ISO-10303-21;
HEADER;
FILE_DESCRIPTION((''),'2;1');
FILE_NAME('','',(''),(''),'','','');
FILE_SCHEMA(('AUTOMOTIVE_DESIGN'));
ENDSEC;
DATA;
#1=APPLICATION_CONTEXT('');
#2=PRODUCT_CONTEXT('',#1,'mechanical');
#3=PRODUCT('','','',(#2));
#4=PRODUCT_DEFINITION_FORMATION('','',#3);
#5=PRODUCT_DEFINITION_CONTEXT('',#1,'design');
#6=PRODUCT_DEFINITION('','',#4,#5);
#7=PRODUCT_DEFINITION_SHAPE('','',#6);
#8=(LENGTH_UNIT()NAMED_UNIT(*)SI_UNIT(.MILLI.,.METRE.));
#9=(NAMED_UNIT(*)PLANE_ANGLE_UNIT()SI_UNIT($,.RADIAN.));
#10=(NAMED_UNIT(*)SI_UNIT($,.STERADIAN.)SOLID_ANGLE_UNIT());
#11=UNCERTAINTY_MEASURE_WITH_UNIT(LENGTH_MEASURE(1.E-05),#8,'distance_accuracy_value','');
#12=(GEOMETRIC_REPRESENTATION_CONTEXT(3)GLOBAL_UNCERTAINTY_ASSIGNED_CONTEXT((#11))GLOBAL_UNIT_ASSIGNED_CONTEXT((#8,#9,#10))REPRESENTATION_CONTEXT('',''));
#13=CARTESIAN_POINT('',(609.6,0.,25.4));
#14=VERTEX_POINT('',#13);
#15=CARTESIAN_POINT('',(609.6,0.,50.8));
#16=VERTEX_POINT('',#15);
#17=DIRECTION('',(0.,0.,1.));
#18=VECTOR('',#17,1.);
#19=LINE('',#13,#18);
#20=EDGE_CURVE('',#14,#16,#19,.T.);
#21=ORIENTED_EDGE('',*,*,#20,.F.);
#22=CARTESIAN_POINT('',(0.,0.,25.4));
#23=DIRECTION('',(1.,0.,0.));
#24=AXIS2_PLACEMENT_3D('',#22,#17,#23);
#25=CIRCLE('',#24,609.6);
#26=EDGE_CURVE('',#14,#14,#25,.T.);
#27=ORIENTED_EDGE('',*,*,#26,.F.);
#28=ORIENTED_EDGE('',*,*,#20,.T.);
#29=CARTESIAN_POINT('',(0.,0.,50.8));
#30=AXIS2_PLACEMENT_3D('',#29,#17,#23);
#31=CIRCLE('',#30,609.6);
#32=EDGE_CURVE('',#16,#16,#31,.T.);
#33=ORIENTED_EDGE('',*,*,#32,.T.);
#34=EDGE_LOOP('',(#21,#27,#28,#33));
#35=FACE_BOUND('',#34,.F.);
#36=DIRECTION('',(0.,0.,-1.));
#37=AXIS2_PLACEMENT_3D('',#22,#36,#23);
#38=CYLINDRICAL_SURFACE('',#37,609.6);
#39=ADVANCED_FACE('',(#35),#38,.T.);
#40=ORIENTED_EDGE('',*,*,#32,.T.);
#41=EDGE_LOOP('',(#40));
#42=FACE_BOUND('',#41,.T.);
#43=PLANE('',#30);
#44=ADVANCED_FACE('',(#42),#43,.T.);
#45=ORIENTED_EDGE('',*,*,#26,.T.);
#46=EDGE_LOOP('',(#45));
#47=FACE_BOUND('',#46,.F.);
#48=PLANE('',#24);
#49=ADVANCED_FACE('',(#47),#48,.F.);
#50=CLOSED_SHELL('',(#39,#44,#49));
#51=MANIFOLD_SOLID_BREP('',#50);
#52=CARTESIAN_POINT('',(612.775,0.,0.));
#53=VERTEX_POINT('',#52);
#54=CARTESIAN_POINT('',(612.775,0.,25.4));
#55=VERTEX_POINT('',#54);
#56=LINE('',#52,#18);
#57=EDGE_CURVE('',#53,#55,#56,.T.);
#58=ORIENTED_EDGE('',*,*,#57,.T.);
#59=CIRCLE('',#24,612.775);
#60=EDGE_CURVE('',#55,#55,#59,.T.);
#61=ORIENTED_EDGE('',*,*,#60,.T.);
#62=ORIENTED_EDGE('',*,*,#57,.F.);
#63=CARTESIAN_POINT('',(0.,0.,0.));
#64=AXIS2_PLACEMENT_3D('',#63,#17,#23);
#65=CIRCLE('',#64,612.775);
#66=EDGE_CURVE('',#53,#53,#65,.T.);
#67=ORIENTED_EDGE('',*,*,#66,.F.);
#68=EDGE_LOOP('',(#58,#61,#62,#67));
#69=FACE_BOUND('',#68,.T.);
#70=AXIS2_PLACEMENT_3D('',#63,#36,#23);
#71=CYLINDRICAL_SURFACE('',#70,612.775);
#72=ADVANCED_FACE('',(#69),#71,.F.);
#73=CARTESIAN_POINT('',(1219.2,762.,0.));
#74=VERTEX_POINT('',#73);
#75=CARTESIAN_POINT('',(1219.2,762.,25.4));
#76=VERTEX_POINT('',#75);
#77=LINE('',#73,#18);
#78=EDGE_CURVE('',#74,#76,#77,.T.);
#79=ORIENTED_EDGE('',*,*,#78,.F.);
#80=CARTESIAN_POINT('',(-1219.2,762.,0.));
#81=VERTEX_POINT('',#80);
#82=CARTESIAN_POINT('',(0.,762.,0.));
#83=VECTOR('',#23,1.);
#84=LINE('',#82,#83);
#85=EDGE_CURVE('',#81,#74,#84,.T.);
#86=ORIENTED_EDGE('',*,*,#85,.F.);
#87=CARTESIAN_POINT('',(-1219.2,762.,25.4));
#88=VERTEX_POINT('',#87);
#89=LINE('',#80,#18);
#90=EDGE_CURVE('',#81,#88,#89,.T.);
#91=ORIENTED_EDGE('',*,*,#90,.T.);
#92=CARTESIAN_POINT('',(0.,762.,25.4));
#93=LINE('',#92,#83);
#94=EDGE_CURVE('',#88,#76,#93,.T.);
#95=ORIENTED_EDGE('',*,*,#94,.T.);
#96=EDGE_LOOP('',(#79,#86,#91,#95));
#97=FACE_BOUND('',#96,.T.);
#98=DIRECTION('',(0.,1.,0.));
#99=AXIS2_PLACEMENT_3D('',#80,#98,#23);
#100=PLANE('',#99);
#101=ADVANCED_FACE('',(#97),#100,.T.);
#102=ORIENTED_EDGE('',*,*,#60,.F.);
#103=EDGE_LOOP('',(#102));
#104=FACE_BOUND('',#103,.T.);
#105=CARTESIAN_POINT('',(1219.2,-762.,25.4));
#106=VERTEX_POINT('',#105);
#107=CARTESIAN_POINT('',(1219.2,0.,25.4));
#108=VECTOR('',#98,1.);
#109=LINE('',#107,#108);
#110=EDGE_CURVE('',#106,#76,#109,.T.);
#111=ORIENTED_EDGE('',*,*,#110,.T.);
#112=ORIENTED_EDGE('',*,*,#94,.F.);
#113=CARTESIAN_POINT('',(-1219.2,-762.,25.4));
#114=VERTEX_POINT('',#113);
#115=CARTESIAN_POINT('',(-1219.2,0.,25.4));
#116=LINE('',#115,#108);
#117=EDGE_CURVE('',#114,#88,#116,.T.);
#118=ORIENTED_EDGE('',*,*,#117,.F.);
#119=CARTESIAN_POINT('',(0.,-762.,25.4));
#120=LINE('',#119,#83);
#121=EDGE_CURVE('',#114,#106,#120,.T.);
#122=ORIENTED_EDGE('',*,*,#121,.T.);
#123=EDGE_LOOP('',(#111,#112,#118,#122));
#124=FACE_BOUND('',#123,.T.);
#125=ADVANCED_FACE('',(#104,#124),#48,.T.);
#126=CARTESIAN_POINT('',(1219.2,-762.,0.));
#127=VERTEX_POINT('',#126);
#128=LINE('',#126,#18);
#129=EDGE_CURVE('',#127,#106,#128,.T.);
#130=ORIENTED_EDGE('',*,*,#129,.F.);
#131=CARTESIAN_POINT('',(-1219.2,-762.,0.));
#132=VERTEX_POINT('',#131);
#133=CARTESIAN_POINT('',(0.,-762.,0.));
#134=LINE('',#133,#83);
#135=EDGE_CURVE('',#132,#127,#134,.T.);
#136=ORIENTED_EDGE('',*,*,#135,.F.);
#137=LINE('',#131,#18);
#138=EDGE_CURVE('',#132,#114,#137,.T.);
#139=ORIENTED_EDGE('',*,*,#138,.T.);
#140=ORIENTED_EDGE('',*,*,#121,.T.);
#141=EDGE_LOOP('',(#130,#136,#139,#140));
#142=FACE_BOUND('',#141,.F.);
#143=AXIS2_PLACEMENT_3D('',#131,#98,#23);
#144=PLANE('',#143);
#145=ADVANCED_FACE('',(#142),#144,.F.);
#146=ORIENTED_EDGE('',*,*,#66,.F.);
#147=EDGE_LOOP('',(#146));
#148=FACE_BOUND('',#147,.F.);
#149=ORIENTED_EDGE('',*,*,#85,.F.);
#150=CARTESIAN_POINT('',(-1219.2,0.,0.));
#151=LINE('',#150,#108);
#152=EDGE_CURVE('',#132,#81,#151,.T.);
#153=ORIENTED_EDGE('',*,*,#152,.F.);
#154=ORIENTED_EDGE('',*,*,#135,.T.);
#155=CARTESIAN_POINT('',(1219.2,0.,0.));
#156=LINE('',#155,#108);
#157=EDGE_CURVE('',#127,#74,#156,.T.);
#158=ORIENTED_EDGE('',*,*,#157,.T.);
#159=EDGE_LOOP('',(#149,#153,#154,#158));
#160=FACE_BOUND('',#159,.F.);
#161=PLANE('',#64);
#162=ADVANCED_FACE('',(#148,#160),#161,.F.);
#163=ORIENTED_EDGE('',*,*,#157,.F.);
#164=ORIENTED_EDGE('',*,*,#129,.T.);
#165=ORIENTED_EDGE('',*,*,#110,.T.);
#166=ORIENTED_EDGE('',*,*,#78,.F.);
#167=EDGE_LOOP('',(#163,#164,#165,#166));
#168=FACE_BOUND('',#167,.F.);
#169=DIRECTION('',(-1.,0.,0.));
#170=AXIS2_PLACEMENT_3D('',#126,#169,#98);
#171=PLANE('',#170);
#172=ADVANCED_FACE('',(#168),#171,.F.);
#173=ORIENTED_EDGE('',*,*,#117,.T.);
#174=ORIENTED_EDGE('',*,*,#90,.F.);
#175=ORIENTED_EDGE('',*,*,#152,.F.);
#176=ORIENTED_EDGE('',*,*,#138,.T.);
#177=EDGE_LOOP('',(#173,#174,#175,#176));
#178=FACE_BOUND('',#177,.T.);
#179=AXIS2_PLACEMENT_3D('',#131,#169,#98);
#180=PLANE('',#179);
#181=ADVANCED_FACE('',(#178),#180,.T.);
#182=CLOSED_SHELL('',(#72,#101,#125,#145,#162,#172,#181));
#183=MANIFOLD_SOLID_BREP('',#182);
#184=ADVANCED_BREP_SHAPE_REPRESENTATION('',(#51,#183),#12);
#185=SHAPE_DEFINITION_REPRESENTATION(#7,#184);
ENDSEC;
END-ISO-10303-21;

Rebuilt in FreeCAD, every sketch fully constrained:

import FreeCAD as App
import Part
import Sketcher
from FreeCAD import Vector
Q = App.Units.Quantity

doc = App.newDocument("Part")
body = doc.addObject("PartDesign::Body", "Body")

sketch1 = doc.addObject("Sketcher::SketchObject", "Sketch")
body.addObject(sketch1)
sketch1.AttachmentSupport = (doc.XY_Plane, [""])
sketch1.MapMode = "FlatFace"
sketch1.addGeometry(Part.LineSegment(Vector(-1219, 762, 0), Vector(-1219, -762, 0)), False)
sketch1.addGeometry(Part.LineSegment(Vector(-1219, -762, 0), Vector(1219, -762, 0)), False)
sketch1.addGeometry(Part.LineSegment(Vector(1219, -762, 0), Vector(1219, 762, 0)), False)
sketch1.addGeometry(Part.LineSegment(Vector(1219, 762, 0), Vector(-1219, 762, 0)), False)
sketch1.addGeometry(Part.Circle(Vector(0, 0, 0), Vector(0, 0, 1), 613), False)
sketch1.addConstraint(Sketcher.Constraint("Coincident", 0, 2, 1, 1))
sketch1.addConstraint(Sketcher.Constraint("Coincident", 1, 2, 2, 1))
sketch1.addConstraint(Sketcher.Constraint("Coincident", 2, 2, 3, 1))
sketch1.addConstraint(Sketcher.Constraint("Coincident", 3, 2, 0, 1))
sketch1.addConstraint(Sketcher.Constraint("Vertical", 0))
sketch1.addConstraint(Sketcher.Constraint("Horizontal", 1))
sketch1.addConstraint(Sketcher.Constraint("Vertical", 2))
sketch1.addConstraint(Sketcher.Constraint("Horizontal", 3))
sketch1.addConstraint(Sketcher.Constraint("Coincident", 4, 3, -1, 1))
sketch1.addConstraint(Sketcher.Constraint("Symmetric", 0, 2, 2, 2, -1, 1))
sketch1.addConstraint(Sketcher.Constraint("Diameter", 4, Q("48.25 in")))
sketch1.addConstraint(Sketcher.Constraint("DistanceX", 1, 1, 1, 2, Q("96 in")))
sketch1.addConstraint(Sketcher.Constraint("DistanceY", 0, 2, 0, 1, Q("60 in")))
pad1 = doc.addObject("PartDesign::Pad", "Pad")
body.addObject(pad1)
pad1.Profile = sketch1
pad1.Length = Q("1 in")
body2 = doc.addObject("PartDesign::Body", "Body001")

sketch2 = doc.addObject("Sketcher::SketchObject", "Sketch001")
body2.addObject(sketch2)
sketch2.AttachmentSupport = (doc.getObject("XY_Plane001"), [""])
sketch2.MapMode = "FlatFace"
sketch2.AttachmentOffset = App.Placement(Vector(0, 0, 1 * 25.4), App.Rotation())
sketch2.addGeometry(Part.Circle(Vector(0, 0, 0), Vector(0, 0, 1), 610), False)
sketch2.addConstraint(Sketcher.Constraint("Coincident", 0, 3, -1, 1))
sketch2.addConstraint(Sketcher.Constraint("Diameter", 0, Q("48 in")))
pad2 = doc.addObject("PartDesign::Pad", "Pad001")
body2.addObject(pad2)
pad2.Profile = sketch2
pad2.Length = Q("1 in")

doc.recompute()
